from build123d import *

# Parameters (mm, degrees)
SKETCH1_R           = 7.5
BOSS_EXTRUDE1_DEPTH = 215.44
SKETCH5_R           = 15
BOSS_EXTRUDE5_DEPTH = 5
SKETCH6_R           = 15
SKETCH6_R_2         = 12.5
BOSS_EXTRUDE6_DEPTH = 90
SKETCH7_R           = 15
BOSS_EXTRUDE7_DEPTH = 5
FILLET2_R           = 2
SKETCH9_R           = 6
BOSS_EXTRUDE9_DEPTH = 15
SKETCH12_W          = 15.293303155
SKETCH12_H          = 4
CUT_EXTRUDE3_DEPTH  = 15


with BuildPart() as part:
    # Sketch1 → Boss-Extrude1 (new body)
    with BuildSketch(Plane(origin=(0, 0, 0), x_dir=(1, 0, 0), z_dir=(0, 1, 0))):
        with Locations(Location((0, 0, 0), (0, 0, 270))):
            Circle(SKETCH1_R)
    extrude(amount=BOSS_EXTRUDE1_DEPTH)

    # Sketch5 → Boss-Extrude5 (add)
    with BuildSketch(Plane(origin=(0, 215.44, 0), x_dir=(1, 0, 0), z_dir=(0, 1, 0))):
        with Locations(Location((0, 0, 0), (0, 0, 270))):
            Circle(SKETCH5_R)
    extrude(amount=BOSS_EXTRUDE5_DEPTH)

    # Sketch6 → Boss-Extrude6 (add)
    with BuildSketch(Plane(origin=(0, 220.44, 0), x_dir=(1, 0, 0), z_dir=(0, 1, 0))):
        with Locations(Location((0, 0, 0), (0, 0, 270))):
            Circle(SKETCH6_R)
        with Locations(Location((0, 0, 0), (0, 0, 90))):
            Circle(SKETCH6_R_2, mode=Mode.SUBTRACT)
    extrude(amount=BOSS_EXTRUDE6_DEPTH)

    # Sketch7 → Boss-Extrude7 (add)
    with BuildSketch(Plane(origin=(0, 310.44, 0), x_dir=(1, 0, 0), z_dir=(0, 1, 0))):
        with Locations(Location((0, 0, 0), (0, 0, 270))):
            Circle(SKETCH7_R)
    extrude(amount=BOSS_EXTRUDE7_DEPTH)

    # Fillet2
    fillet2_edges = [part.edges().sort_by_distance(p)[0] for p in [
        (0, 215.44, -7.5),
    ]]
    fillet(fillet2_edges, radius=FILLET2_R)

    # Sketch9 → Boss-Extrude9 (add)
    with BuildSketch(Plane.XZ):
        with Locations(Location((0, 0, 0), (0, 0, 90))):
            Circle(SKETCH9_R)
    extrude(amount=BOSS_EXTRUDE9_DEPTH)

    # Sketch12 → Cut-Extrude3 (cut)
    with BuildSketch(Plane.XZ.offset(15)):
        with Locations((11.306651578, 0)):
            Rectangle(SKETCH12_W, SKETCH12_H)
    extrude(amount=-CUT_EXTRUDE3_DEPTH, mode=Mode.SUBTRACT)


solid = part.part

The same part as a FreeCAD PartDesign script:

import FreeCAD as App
import Part
import Sketcher
from FreeCAD import Vector


def edges_at(feature, points):
    """Names of the edges that pass closest to the given points."""
    edges = feature.Shape.Edges
    near = lambda p: min(range(len(edges)), key=lambda i: edges[i].distToShape(Part.Vertex(*p))[0])
    return sorted({f"Edge{near(p) + 1}" for p in points})

doc = App.newDocument("Part")
params = doc.addObject("Spreadsheet::Sheet", "Params")
for row, (alias, value) in enumerate([
    ("sketch1_diameter", "15 mm"),
    ("pad1_length", "215.44 mm"),
    ("sketch2_diameter", "30 mm"),
    ("pad2_length", "5 mm"),
    ("sketch3_diameter", "30 mm"),
    ("sketch3_diameter2", "25 mm"),
    ("pad3_length", "90 mm"),
    ("sketch4_diameter", "30 mm"),
    ("pad4_length", "5 mm"),
    ("fillet_radius", "2 mm"),
    ("sketch5_diameter", "12 mm"),
    ("pad5_length", "15 mm"),
    ("sketch6_height", "4 mm"),
    ("pocket1_length", "15 mm"),
], start=1):
    params.set(f"A{row}", alias)
    params.set(f"B{row}", "=" + value)
    params.setAlias(f"B{row}", alias)

body = doc.addObject("PartDesign::Body", "Body")

sketch1 = doc.addObject("Sketcher::SketchObject", "Sketch")
body.addObject(sketch1)
sketch1.AttachmentSupport = (doc.XZ_Plane, [""])
sketch1.MapMode = "FlatFace"
sketch1.addGeometry(Part.Circle(Vector(0, 0, 0), Vector(0, 0, 1), 8), False)
sketch1.addConstraint(Sketcher.Constraint("Coincident", 0, 3, -1, 1))
sketch1.addConstraint(Sketcher.Constraint("Diameter", 0, 15.0))
sketch1.setExpression("Constraints[1]", "Params.sketch1_diameter")
pad1 = doc.addObject("PartDesign::Pad", "Pad")
body.addObject(pad1)
pad1.Profile = sketch1
pad1.setExpression("Length", "Params.pad1_length")
pad1.Reversed = True

sketch2 = doc.addObject("Sketcher::SketchObject", "Sketch001")
body.addObject(sketch2)
sketch2.AttachmentSupport = (doc.XZ_Plane, [""])
sketch2.MapMode = "FlatFace"
sketch2.AttachmentOffset = App.Placement(Vector(0, 0, -215.44), App.Rotation())
sketch2.addGeometry(Part.Circle(Vector(0, 0, 0), Vector(0, 0, 1), 15), False)
sketch2.addConstraint(Sketcher.Constraint("Coincident", 0, 3, -1, 1))
sketch2.addConstraint(Sketcher.Constraint("Diameter", 0, 30.0))
sketch2.setExpression("Constraints[1]", "Params.sketch2_diameter")
pad2 = doc.addObject("PartDesign::Pad", "Pad001")
body.addObject(pad2)
pad2.Profile = sketch2
pad2.setExpression("Length", "Params.pad2_length")
pad2.Reversed = True

sketch3 = doc.addObject("Sketcher::SketchObject", "Sketch002")
body.addObject(sketch3)
sketch3.AttachmentSupport = (doc.XZ_Plane, [""])
sketch3.MapMode = "FlatFace"
sketch3.AttachmentOffset = App.Placement(Vector(0, 0, -220.44), App.Rotation())
sketch3.addGeometry(Part.Circle(Vector(0, 0, 0), Vector(0, 0, 1), 15), False)
sketch3.addGeometry(Part.Circle(Vector(0, 0, 0), Vector(0, 0, 1), 12), False)
sketch3.addConstraint(Sketcher.Constraint("Coincident", 0, 3, -1, 1))
sketch3.addConstraint(Sketcher.Constraint("Coincident", 1, 3, -1, 1))
sketch3.addConstraint(Sketcher.Constraint("Diameter", 0, 30.0))
sketch3.addConstraint(Sketcher.Constraint("Diameter", 1, 25.0))
sketch3.setExpression("Constraints[2]", "Params.sketch3_diameter")
sketch3.setExpression("Constraints[3]", "Params.sketch3_diameter2")
pad3 = doc.addObject("PartDesign::Pad", "Pad002")
body.addObject(pad3)
pad3.Profile = sketch3
pad3.setExpression("Length", "Params.pad3_length")
pad3.Reversed = True

sketch4 = doc.addObject("Sketcher::SketchObject", "Sketch003")
body.addObject(sketch4)
sketch4.AttachmentSupport = (doc.XZ_Plane, [""])
sketch4.MapMode = "FlatFace"
sketch4.AttachmentOffset = App.Placement(Vector(0, 0, -310.44), App.Rotation())
sketch4.addGeometry(Part.Circle(Vector(0, 0, 0), Vector(0, 0, 1), 15), False)
sketch4.addConstraint(Sketcher.Constraint("Coincident", 0, 3, -1, 1))
sketch4.addConstraint(Sketcher.Constraint("Diameter", 0, 30.0))
sketch4.setExpression("Constraints[1]", "Params.sketch4_diameter")
pad4 = doc.addObject("PartDesign::Pad", "Pad003")
body.addObject(pad4)
pad4.Profile = sketch4
pad4.setExpression("Length", "Params.pad4_length")
pad4.Reversed = True
doc.recompute()

fillet = doc.addObject("PartDesign::Fillet", "Fillet")
body.addObject(fillet)
fillet.Base = (pad4, edges_at(pad4, [(0, 215.44, -7.5)]))
fillet.setExpression("Radius", "Params.fillet_radius")

sketch5 = doc.addObject("Sketcher::SketchObject", "Sketch004")
body.addObject(sketch5)
sketch5.AttachmentSupport = (doc.XZ_Plane, [""])
sketch5.MapMode = "FlatFace"
sketch5.addGeometry(Part.Circle(Vector(0, 0, 0), Vector(0, 0, 1), 6), False)
sketch5.addConstraint(Sketcher.Constraint("Coincident", 0, 3, -1, 1))
sketch5.addConstraint(Sketcher.Constraint("Diameter", 0, 12.0))
sketch5.setExpression("Constraints[1]", "Params.sketch5_diameter")
pad5 = doc.addObject("PartDesign::Pad", "Pad004")
body.addObject(pad5)
pad5.Profile = sketch5
pad5.setExpression("Length", "Params.pad5_length")

sketch6 = doc.addObject("Sketcher::SketchObject", "Sketch005")
body.addObject(sketch6)
sketch6.AttachmentSupport = (doc.XZ_Plane, [""])
sketch6.MapMode = "FlatFace"
sketch6.AttachmentOffset = App.Placement(Vector(0, 0, 15), App.Rotation())
sketch6.addGeometry(Part.LineSegment(Vector(3.7, 2, 0), Vector(3.7, -2, 0)), False)
sketch6.addGeometry(Part.LineSegment(Vector(3.7, -2, 0), Vector(19, -2, 0)), False)
sketch6.addGeometry(Part.LineSegment(Vector(19, -2, 0), Vector(19, 2, 0)), False)
sketch6.addGeometry(Part.LineSegment(Vector(19, 2, 0), Vector(3.7, 2, 0)), False)
sketch6.addConstraint(Sketcher.Constraint("Coincident", 0, 2, 1, 1))
sketch6.addConstraint(Sketcher.Constraint("Coincident", 1, 2, 2, 1))
sketch6.addConstraint(Sketcher.Constraint("Coincident", 2, 2, 3, 1))
sketch6.addConstraint(Sketcher.Constraint("Coincident", 3, 2, 0, 1))
sketch6.addConstraint(Sketcher.Constraint("Vertical", 0))
sketch6.addConstraint(Sketcher.Constraint("Horizontal", 1))
sketch6.addConstraint(Sketcher.Constraint("Vertical", 2))
sketch6.addConstraint(Sketcher.Constraint("Horizontal", 3))
sketch6.addConstraint(Sketcher.Constraint("DistanceY", 0, 2, 0, 1, 4.0))
sketch6.addConstraint(Sketcher.Constraint("DistanceY", 0, 2, -1, 1, 2.0))
sketch6.addConstraint(Sketcher.Constraint("DistanceX", -1, 1, 0, 2, 3.66))
sketch6.addConstraint(Sketcher.Constraint("DistanceX", 1, 1, 1, 2, 15.293303))
sketch6.setExpression("Constraints[8]", "Params.sketch6_height")
pocket1 = doc.addObject("PartDesign::Pocket", "Pocket")
body.addObject(pocket1)
pocket1.Profile = sketch6
pocket1.setExpression("Length", "Params.pocket1_length")

doc.recompute()
